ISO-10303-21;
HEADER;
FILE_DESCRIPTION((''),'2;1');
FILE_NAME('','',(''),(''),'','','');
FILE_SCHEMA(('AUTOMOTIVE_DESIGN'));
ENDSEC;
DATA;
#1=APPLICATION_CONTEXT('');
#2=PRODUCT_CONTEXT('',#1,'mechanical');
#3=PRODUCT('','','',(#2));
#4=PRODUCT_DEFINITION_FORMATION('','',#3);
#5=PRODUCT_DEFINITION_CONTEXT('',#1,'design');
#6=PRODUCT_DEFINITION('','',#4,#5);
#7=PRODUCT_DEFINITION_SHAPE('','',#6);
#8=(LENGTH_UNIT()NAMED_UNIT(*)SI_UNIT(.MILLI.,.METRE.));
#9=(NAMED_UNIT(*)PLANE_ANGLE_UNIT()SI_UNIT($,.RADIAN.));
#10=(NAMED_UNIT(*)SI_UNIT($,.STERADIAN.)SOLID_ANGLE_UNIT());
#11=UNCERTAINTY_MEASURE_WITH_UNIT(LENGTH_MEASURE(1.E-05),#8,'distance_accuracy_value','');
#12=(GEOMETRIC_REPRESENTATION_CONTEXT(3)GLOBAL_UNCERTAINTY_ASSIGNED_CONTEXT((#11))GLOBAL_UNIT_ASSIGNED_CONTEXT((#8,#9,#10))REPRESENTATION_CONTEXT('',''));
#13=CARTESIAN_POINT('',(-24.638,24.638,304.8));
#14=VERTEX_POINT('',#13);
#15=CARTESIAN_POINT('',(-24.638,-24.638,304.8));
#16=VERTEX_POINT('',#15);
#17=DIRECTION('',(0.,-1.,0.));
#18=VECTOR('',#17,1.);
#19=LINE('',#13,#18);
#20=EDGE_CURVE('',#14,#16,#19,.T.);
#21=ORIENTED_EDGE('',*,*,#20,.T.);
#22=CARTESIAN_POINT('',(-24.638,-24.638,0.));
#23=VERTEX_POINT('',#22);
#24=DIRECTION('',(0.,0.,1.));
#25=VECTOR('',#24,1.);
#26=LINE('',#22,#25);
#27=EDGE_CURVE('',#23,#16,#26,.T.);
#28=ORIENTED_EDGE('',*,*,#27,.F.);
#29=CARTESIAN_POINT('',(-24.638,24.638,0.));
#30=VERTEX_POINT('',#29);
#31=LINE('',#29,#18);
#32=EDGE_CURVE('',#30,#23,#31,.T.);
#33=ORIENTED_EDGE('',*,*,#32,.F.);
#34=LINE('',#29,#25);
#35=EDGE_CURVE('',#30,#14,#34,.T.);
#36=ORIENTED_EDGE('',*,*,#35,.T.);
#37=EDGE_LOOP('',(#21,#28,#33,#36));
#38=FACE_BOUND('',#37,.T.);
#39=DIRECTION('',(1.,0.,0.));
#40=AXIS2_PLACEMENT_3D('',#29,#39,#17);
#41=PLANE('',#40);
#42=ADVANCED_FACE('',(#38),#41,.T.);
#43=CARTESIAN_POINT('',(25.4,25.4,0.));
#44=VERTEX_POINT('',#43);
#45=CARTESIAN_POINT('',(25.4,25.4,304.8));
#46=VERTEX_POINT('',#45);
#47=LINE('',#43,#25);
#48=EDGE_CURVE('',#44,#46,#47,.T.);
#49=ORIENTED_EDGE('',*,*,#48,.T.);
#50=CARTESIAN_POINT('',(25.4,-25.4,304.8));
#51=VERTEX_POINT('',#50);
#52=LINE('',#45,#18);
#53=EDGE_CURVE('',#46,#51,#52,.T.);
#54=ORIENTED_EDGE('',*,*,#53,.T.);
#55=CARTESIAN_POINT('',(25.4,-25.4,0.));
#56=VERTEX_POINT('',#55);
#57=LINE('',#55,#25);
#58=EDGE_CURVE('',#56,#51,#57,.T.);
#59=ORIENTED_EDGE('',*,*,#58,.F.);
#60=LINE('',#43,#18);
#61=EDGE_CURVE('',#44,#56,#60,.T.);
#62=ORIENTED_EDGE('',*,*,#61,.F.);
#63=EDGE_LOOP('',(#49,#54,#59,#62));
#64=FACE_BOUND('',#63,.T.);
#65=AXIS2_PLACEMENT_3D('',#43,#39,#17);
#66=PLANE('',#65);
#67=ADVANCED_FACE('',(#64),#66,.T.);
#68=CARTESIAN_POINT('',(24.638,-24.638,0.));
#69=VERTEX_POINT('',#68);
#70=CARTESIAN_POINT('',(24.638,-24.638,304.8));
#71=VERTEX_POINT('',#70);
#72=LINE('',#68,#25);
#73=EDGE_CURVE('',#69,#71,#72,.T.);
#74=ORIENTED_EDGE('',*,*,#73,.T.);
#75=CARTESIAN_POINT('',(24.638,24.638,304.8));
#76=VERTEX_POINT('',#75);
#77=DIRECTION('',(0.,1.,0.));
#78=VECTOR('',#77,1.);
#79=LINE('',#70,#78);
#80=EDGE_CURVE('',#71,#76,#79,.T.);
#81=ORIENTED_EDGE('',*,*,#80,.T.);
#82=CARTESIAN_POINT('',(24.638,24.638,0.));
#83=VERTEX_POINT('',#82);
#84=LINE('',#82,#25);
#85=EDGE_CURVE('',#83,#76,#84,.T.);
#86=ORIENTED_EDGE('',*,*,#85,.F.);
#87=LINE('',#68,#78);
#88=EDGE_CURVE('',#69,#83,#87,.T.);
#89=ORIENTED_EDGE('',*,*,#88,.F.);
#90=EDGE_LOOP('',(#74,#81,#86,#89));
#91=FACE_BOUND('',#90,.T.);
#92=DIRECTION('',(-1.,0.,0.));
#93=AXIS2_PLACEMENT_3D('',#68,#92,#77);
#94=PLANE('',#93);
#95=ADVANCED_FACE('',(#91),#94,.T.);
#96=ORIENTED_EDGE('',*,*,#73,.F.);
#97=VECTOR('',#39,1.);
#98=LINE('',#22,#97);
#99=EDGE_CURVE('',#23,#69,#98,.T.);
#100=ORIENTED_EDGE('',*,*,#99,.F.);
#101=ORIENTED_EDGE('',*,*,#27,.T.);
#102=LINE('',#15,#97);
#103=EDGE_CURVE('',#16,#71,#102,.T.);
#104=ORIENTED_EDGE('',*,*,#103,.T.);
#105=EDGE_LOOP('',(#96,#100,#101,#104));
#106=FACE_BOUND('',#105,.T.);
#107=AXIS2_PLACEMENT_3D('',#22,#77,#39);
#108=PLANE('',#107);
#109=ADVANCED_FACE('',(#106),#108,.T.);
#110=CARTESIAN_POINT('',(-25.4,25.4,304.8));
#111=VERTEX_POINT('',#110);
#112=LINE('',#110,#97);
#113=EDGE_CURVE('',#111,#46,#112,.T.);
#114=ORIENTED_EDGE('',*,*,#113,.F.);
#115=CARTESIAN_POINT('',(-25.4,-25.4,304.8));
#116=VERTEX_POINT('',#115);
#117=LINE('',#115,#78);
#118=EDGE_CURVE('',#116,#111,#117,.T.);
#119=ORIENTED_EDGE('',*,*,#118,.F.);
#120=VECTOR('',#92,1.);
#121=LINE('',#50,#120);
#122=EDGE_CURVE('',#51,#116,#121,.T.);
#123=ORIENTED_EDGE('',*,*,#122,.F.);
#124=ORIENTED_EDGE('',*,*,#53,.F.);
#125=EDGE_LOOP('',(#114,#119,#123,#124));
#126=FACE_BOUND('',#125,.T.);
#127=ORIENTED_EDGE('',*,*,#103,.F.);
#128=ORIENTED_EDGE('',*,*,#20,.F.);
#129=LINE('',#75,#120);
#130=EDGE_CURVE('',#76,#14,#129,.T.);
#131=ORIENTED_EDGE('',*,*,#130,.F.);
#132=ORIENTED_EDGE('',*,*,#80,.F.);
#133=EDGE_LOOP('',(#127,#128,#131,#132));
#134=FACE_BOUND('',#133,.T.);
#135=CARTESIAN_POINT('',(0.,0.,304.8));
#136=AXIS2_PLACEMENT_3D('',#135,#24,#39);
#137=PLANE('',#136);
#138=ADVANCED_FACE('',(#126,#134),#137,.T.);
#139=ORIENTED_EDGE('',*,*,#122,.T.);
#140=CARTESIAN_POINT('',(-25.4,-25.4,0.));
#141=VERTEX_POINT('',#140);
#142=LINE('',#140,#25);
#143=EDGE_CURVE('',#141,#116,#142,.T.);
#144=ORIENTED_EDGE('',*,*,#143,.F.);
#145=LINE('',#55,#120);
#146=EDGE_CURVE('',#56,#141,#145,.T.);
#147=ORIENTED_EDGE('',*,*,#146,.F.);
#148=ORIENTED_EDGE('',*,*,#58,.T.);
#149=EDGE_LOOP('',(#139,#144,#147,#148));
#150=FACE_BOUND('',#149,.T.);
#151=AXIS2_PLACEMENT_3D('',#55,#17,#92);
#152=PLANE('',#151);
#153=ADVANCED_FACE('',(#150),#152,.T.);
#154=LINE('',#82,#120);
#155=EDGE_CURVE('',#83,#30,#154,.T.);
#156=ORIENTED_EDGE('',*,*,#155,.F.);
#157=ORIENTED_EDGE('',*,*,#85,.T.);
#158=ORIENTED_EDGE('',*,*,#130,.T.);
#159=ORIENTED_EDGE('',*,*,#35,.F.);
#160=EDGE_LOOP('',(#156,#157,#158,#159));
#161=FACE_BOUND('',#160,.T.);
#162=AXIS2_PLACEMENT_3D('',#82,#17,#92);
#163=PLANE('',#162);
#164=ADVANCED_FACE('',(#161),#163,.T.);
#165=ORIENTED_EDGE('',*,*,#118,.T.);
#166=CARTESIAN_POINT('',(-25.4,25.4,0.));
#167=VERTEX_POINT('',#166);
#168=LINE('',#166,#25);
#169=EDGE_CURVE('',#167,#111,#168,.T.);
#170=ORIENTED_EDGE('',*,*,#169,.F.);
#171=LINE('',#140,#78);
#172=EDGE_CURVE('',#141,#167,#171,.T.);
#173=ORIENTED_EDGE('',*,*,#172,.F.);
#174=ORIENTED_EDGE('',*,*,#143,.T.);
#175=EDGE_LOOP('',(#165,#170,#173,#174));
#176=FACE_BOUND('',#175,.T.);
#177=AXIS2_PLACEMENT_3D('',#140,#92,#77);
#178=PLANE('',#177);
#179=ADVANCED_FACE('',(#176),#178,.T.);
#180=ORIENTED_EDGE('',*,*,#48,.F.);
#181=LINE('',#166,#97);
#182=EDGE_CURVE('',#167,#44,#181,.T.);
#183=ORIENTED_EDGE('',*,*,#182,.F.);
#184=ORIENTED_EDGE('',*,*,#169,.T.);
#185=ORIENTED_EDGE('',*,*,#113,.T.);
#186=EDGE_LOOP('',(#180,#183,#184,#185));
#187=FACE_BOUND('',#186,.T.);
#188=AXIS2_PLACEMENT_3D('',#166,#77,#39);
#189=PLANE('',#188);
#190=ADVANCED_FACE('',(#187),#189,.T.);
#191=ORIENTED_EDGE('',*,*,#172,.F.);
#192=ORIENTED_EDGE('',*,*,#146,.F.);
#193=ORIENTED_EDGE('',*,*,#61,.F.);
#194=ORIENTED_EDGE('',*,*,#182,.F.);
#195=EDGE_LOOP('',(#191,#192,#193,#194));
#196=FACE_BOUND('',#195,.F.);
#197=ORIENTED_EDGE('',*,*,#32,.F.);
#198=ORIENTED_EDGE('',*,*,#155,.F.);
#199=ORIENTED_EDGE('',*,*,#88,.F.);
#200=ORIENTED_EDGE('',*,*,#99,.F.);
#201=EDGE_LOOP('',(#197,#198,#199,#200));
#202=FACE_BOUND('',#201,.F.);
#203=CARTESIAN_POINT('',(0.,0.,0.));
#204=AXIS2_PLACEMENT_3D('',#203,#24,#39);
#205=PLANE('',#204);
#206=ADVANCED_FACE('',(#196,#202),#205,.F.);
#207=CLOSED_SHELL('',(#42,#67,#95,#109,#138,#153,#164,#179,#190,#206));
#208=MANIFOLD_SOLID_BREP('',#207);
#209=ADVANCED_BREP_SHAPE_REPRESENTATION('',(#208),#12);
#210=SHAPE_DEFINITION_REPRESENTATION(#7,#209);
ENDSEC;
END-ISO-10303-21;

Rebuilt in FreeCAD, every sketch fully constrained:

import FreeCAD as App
import Part
import Sketcher
Q = App.Units.Quantity


def add_polygon(sketch, points):
    """Adds a closed chain of lines whose ends are joined by coincident constraints."""
    first, n = sketch.GeometryCount, len(points)
    for a, b in zip(points, points[1:] + points[:1]):
        sketch.addGeometry(Part.LineSegment(App.Vector(*a, 0), App.Vector(*b, 0)), False)
    for i in range(n):
        sketch.addConstraint(Sketcher.Constraint("Coincident", first + i, 2, first + (i + 1) % n, 1))

doc = App.newDocument("Part")
params = doc.addObject("Spreadsheet::Sheet", "Params")
for row, (alias, value) in enumerate([
    ("sketch1_width", "2 in"),
    ("pad1_length", "12 in"),
], start=1):
    params.set(f"A{row}", alias)
    params.set(f"B{row}", "=" + value)
    params.setAlias(f"B{row}", alias)

body = doc.addObject("PartDesign::Body", "Body")

# Sketch on XY plane
sketch1 = doc.addObject("Sketcher::SketchObject", "Sketch")
body.addObject(sketch1)
sketch1.AttachmentSupport = (doc.XY_Plane, [""])
sketch1.MapMode = "FlatFace"
add_polygon(sketch1, [(25, 25), (-25, 25), (-25, -25), (25, -25)])  # lines 0-3
add_polygon(sketch1, [(-25, 25), (25, 25), (25, -25), (-25, -25)])  # lines 4-7
sketch1.addConstraint(Sketcher.Constraint("Horizontal", 0))
sketch1.addConstraint(Sketcher.Constraint("Vertical", 1))
sketch1.addConstraint(Sketcher.Constraint("Horizontal", 2))
sketch1.addConstraint(Sketcher.Constraint("Vertical", 3))
sketch1.addConstraint(Sketcher.Constraint("Horizontal", 4))
sketch1.addConstraint(Sketcher.Constraint("Vertical", 5))
sketch1.addConstraint(Sketcher.Constraint("Horizontal", 6))
sketch1.addConstraint(Sketcher.Constraint("Vertical", 7))
sketch1.addConstraint(Sketcher.Constraint("Symmetric", 0, 2, 2, 2, -1, 1))
sketch1.addConstraint(Sketcher.Constraint("Symmetric", 4, 2, 6, 2, -1, 1))
sketch1.addConstraint(Sketcher.Constraint("Equal", 2, 1))
sketch1.addConstraint(Sketcher.Constraint("Equal", 6, 5))
sketch1.addConstraint(Sketcher.Constraint("DistanceX", 0, 2, 0, 1, Q("2 in")))
sketch1.addConstraint(Sketcher.Constraint("DistanceX", 4, 2, 3, 2, Q("0.03 in")))
sketch1.setExpression("Constraints[20]", "Params.sketch1_width")
pad1 = doc.addObject("PartDesign::Pad", "Pad")
body.addObject(pad1)
pad1.Profile = sketch1
pad1.setExpression("Length", "Params.pad1_length")

doc.recompute()
